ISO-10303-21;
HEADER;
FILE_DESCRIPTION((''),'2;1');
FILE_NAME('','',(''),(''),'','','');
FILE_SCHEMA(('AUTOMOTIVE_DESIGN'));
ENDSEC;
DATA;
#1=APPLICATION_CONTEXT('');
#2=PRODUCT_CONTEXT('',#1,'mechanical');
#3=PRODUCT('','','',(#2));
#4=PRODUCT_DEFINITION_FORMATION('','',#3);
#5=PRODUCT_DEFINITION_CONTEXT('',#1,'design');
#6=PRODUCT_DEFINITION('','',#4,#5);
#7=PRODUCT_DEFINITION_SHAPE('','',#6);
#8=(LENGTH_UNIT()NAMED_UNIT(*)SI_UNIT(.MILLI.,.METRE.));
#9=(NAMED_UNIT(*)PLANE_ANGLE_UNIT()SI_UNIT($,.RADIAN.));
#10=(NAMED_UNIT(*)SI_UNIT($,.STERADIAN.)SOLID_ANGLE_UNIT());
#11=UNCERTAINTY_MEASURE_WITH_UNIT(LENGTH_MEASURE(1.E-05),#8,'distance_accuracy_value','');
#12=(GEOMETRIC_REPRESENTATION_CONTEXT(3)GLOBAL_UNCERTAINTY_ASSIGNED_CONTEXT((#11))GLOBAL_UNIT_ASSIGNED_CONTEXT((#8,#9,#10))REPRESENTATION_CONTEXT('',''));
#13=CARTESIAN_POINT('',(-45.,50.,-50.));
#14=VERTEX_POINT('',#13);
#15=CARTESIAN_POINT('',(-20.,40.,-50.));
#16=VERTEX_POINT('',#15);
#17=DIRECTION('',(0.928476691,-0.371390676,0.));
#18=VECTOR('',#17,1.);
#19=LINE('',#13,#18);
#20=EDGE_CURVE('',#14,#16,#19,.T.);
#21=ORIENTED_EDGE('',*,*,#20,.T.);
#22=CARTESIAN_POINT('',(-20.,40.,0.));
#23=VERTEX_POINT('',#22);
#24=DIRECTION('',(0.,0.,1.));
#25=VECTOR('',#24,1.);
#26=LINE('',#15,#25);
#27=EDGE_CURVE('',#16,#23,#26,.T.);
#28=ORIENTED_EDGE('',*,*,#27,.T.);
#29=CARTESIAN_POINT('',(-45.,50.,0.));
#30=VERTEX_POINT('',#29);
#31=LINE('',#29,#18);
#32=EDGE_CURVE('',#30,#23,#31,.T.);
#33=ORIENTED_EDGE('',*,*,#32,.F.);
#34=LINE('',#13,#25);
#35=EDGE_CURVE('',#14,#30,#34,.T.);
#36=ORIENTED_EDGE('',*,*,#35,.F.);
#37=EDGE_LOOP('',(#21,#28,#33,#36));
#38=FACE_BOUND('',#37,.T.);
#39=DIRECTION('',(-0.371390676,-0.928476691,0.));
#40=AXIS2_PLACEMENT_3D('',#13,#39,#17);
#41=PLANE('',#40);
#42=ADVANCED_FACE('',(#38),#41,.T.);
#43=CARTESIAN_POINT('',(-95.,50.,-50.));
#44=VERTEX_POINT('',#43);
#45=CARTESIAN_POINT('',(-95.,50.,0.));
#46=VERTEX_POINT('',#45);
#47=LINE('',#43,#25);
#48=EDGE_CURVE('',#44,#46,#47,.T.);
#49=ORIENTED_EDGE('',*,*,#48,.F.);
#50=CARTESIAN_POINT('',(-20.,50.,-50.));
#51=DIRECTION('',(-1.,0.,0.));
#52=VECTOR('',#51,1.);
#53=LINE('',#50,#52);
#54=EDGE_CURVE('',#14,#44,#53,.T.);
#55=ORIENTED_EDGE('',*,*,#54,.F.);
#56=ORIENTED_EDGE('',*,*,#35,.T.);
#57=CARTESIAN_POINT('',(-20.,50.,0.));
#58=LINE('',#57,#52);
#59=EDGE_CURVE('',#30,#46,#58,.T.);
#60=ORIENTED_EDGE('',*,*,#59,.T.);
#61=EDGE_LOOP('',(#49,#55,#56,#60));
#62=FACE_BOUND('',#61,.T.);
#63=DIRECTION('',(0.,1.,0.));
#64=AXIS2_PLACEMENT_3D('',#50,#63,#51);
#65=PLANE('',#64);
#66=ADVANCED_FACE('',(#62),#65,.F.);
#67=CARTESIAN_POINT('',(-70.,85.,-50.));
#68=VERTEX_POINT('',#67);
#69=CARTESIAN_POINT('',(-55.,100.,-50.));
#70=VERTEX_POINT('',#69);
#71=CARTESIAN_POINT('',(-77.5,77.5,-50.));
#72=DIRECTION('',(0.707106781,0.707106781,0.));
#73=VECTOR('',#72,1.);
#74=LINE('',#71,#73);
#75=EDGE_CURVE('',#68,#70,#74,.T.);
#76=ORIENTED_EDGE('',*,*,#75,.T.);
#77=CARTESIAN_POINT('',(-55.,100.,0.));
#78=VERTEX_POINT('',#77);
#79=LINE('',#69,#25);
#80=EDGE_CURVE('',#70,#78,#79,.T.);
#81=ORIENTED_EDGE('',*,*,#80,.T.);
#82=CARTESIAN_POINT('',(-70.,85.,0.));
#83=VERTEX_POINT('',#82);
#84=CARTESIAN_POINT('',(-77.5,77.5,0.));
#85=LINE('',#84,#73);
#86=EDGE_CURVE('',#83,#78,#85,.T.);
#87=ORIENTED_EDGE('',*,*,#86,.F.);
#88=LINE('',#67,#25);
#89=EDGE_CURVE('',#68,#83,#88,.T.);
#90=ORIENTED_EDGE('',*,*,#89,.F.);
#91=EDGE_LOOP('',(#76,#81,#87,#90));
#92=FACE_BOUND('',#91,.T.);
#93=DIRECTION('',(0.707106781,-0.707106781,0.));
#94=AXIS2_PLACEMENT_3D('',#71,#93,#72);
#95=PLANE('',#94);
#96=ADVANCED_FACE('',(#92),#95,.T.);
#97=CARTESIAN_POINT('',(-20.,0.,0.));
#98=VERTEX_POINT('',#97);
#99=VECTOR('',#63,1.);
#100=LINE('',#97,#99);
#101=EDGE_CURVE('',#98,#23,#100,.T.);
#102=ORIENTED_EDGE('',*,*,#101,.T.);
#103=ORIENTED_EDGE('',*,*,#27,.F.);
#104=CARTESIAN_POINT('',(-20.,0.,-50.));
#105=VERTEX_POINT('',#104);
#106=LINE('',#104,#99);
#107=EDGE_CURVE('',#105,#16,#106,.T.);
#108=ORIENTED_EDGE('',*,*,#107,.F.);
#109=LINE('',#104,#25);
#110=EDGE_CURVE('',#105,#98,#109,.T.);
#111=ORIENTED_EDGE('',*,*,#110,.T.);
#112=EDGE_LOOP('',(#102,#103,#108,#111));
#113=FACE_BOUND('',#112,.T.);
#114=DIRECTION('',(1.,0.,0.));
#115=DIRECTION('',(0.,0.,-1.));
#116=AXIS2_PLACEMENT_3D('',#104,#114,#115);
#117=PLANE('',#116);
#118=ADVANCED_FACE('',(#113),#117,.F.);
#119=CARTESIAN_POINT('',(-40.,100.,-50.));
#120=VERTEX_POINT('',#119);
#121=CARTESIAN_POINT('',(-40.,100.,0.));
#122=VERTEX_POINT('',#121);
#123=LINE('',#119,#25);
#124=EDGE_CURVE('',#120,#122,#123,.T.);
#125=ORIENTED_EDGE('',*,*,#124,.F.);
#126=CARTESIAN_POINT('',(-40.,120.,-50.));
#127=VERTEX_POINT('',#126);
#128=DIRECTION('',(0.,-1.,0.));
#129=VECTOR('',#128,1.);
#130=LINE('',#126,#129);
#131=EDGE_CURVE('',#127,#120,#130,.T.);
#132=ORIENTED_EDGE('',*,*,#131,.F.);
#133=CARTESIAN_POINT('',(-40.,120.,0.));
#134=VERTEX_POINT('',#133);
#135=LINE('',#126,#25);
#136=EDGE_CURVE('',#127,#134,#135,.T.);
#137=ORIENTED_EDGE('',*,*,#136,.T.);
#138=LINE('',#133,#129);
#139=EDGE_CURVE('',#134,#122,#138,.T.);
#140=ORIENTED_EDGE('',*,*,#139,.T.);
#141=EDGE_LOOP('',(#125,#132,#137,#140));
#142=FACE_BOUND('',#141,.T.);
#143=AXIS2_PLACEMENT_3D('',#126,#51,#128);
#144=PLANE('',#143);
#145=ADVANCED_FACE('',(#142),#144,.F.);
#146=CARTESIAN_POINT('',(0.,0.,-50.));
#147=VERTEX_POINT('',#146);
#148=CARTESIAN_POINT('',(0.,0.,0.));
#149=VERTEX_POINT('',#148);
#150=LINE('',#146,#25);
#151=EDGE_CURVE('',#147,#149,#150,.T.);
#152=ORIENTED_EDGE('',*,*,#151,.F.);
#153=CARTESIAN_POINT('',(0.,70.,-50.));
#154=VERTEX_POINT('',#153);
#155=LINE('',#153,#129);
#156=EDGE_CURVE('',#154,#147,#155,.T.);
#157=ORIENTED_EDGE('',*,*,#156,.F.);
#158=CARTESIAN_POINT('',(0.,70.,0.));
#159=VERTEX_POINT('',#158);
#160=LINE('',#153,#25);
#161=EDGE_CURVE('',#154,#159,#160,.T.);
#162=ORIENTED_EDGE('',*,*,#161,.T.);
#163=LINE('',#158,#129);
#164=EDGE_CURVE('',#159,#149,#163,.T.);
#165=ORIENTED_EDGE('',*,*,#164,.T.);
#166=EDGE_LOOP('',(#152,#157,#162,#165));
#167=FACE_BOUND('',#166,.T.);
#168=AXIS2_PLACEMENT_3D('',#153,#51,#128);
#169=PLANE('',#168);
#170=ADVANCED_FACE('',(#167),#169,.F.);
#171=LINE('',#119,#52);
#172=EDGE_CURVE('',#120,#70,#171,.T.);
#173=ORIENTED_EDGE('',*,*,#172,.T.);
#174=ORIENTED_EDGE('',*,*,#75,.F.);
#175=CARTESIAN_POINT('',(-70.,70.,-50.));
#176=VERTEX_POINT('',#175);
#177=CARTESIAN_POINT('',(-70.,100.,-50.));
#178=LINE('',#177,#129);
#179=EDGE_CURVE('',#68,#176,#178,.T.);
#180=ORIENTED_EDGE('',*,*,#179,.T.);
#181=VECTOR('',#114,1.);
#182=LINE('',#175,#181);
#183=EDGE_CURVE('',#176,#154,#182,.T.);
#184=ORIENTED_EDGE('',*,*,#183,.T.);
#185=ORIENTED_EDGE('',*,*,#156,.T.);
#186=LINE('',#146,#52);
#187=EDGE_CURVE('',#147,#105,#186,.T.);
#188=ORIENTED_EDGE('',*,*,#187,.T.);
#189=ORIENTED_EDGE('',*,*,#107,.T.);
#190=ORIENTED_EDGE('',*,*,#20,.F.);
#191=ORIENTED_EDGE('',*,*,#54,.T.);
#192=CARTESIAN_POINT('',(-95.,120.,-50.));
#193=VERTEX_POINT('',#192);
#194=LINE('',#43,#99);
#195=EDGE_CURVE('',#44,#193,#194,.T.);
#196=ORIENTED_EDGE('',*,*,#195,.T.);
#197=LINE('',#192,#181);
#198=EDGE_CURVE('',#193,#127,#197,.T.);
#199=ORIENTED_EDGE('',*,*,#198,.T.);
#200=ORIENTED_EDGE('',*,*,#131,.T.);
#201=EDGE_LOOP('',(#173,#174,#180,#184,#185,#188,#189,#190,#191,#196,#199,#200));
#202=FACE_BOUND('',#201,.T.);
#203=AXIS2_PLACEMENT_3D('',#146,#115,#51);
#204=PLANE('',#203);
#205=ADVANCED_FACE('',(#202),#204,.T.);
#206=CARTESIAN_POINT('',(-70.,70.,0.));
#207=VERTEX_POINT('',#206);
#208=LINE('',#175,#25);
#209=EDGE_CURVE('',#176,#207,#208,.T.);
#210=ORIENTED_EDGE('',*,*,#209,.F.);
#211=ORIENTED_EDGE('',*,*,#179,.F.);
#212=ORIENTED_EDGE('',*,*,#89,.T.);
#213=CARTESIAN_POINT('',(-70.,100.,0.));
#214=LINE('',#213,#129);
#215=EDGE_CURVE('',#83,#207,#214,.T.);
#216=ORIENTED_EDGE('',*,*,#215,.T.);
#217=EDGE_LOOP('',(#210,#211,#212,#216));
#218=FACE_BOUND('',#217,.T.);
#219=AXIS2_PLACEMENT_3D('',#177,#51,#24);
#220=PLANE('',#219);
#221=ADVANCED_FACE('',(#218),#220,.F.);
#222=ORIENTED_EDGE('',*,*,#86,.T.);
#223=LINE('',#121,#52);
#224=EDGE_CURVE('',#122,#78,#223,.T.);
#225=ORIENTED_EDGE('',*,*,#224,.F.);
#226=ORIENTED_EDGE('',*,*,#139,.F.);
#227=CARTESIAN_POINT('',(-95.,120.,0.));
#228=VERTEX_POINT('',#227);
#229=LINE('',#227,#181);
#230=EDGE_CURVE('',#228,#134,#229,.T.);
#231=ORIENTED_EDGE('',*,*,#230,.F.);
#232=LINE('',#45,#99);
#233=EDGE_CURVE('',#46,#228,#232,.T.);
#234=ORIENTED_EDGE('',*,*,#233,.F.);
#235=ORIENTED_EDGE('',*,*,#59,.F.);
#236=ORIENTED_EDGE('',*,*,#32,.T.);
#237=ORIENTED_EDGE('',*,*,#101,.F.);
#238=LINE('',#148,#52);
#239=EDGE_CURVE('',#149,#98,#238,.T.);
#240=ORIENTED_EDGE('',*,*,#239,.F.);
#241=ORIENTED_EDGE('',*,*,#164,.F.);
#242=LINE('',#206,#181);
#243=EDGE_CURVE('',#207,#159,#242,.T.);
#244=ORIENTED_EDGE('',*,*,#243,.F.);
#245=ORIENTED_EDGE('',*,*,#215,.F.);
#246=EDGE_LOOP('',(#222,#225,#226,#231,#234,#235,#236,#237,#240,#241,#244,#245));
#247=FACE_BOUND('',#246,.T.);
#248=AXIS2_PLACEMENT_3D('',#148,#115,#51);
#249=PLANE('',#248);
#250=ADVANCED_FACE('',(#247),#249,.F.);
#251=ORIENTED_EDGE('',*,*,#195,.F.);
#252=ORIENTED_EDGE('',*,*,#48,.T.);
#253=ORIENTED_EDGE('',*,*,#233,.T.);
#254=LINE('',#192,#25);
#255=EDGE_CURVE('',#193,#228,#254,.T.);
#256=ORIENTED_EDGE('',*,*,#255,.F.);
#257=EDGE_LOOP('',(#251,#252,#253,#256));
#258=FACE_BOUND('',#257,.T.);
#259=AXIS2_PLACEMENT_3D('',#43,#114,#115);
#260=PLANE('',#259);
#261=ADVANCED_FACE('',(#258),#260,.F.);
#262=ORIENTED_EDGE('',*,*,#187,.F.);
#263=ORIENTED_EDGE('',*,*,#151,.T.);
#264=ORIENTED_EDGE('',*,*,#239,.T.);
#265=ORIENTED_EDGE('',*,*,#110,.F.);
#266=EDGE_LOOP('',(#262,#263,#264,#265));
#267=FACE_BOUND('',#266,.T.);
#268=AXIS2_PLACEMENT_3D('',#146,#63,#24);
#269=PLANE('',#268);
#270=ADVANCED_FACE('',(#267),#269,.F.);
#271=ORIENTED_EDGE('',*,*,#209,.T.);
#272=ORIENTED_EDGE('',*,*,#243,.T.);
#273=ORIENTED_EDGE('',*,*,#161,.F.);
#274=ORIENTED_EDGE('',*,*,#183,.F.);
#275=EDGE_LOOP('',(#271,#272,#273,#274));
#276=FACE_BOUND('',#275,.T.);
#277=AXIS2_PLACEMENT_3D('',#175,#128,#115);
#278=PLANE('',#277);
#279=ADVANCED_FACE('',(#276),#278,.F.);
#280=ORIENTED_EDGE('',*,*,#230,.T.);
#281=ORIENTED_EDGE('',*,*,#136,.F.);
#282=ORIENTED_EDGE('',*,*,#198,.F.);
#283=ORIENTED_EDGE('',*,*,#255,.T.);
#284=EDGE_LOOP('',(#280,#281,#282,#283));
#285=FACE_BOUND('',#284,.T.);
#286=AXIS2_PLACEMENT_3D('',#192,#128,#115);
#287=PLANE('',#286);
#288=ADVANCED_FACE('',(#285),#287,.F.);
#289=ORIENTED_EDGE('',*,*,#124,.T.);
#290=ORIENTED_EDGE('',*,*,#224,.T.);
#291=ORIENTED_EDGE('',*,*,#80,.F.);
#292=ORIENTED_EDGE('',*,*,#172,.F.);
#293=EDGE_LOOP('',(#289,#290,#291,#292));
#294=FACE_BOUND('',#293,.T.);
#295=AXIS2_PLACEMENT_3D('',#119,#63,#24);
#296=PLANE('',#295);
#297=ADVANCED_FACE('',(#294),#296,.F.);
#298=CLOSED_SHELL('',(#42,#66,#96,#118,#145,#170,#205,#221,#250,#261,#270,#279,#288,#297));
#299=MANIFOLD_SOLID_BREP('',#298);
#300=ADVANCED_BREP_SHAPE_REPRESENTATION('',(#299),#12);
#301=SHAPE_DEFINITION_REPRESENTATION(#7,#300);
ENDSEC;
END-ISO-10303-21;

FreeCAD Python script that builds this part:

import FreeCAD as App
import Part
import Sketcher
from FreeCAD import Vector
Q = App.Units.Quantity


def add_polygon(sketch, points):
    """Adds a closed chain of lines whose ends are joined by coincident constraints."""
    first, n = sketch.GeometryCount, len(points)
    for a, b in zip(points, points[1:] + points[:1]):
        sketch.addGeometry(Part.LineSegment(App.Vector(*a, 0), App.Vector(*b, 0)), False)
    for i in range(n):
        sketch.addConstraint(Sketcher.Constraint("Coincident", first + i, 2, first + (i + 1) % n, 1))

doc = App.newDocument("Part")
body = doc.addObject("PartDesign::Body", "Body")

# Sketch on XY plane
sketch1 = doc.addObject("Sketcher::SketchObject", "Sketch")
body.addObject(sketch1)
sketch1.AttachmentSupport = (doc.XY_Plane, [""])
sketch1.MapMode = "FlatFace"
add_polygon(sketch1, [(-70, 100), (-40, 100), (-40, 120), (-95, 120), (-95, 50), (-20, 50), (-20, 0), (0, 0), (0, 70), (-70, 70)])  # lines 0-9
sketch1.addConstraint(Sketcher.Constraint("Horizontal", 0))
sketch1.addConstraint(Sketcher.Constraint("Vertical", 1))
sketch1.addConstraint(Sketcher.Constraint("Horizontal", 2))
sketch1.addConstraint(Sketcher.Constraint("Vertical", 3))
sketch1.addConstraint(Sketcher.Constraint("Horizontal", 4))
sketch1.addConstraint(Sketcher.Constraint("Vertical", 5))
sketch1.addConstraint(Sketcher.Constraint("Horizontal", 6))
sketch1.addConstraint(Sketcher.Constraint("Vertical", 7))
sketch1.addConstraint(Sketcher.Constraint("Horizontal", 8))
sketch1.addConstraint(Sketcher.Constraint("Vertical", 9))
sketch1.addConstraint(Sketcher.Constraint("Coincident", 6, 2, -1, 1))
sketch1.addConstraint(Sketcher.Constraint("Equal", 6, 1))
sketch1.addConstraint(Sketcher.Constraint("Equal", 8, 3))
sketch1.addConstraint(Sketcher.Constraint("Equal", 3, 7))
sketch1.addConstraint(Sketcher.Constraint("Equal", 0, 9))
sketch1.addConstraint(Sketcher.Constraint("DistanceX", 0, 1, 0, 2, Q("30 mm")))
sketch1.addConstraint(Sketcher.Constraint("DistanceX", 2, 2, 2, 1, Q("55 mm")))
sketch1.addConstraint(Sketcher.Constraint("DistanceX", 4, 1, 4, 2, Q("75 mm")))
sketch1.addConstraint(Sketcher.Constraint("DistanceX", 6, 1, 6, 2, Q("20 mm")))
pad1 = doc.addObject("PartDesign::Pad", "Pad")
body.addObject(pad1)
pad1.Profile = sketch1
pad1.Length = 50
pad1.Reversed = True

# Sketch on XY plane
sketch2 = doc.addObject("Sketcher::SketchObject", "Sketch001")
body.addObject(sketch2)
sketch2.AttachmentSupport = (doc.XY_Plane, [""])
sketch2.MapMode = "FlatFace"
add_polygon(sketch2, [(-45, 50), (-20, 40), (-20, 50)])  # lines 0-2
sketch2.addConstraint(Sketcher.Constraint("Vertical", 1))
sketch2.addConstraint(Sketcher.Constraint("Horizontal", 2))
sketch2.addConstraint(Sketcher.Constraint("DistanceX", 2, 2, 2, 1, Q("25 mm")))
sketch2.addConstraint(Sketcher.Constraint("DistanceY", 1, 1, 1, 2, Q("10 mm")))
sketch2.addConstraint(Sketcher.Constraint("DistanceX", 0, 2, -1, 1, Q("20 mm")))
sketch2.addConstraint(Sketcher.Constraint("DistanceY", -1, 1, 0, 2, Q("40 mm")))
pad2 = doc.addObject("PartDesign::Pad", "Pad001")
body.addObject(pad2)
pad2.Profile = sketch2
pad2.Length = 50
pad2.Reversed = True

# Sketch on XY plane
sketch3 = doc.addObject("Sketcher::SketchObject", "Sketch002")
body.addObject(sketch3)
sketch3.AttachmentSupport = (doc.XY_Plane, [""])
sketch3.MapMode = "FlatFace"
add_polygon(sketch3, [(-70, 100), (-70, 85), (-55, 100)])  # lines 0-2
sketch3.addConstraint(Sketcher.Constraint("Vertical", 0))
sketch3.addConstraint(Sketcher.Constraint("Horizontal", 2))
sketch3.addConstraint(Sketcher.Constraint("Equal", 2, 0))
sketch3.addConstraint(Sketcher.Constraint("DistanceX", 2, 2, 2, 1, Q("15 mm")))
sketch3.addConstraint(Sketcher.Constraint("DistanceX", 0, 2, -1, 1, Q("70 mm")))
sketch3.addConstraint(Sketcher.Constraint("DistanceY", -1, 1, 0, 2, Q("85 mm")))
pad3 = doc.addObject("PartDesign::Pad", "Pad002")
body.addObject(pad3)
pad3.Profile = sketch3
pad3.Length = 50
pad3.Reversed = True

doc.recompute()
